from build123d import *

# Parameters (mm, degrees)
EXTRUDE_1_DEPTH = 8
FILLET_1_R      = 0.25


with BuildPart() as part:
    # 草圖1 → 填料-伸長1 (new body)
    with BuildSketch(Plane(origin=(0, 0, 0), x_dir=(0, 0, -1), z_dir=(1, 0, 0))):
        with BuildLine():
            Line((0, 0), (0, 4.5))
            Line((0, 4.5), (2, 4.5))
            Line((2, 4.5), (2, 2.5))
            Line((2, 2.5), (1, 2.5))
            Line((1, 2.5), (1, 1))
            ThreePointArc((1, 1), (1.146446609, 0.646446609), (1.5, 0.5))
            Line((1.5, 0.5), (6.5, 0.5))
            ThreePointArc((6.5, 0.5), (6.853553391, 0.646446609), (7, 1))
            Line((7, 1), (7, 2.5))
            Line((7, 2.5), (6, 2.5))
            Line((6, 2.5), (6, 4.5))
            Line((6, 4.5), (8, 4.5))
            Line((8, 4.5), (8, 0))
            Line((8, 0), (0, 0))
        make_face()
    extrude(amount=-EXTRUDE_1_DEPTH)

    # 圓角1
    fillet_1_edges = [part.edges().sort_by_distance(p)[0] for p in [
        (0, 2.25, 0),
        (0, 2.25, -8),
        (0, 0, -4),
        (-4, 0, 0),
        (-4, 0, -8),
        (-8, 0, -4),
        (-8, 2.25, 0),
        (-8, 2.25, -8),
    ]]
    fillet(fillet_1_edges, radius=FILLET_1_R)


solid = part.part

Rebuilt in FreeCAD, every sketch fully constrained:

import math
import FreeCAD as App
import Part
import Sketcher
from FreeCAD import Vector


def edges_at(feature, points):
    """Names of the edges that pass closest to the given points."""
    edges = feature.Shape.Edges
    near = lambda p: min(range(len(edges)), key=lambda i: edges[i].distToShape(Part.Vertex(*p))[0])
    return sorted({f"Edge{near(p) + 1}" for p in points})

doc = App.newDocument("Part")
body = doc.addObject("PartDesign::Body", "Body")

# Sketch on YZ plane
sketch1 = body.newObject("Sketcher::SketchObject", "Sketch")
sketch1.AttachmentSupport = (doc.getObject("YZ_Plane"), [""])
sketch1.MapMode = "FlatFace"
sketch1.addGeometry([
    Part.LineSegment(Vector(4.5, 0, 0), Vector(0, 0, 0)),  # 0
    Part.LineSegment(Vector(0, 0, 0), Vector(0, -8, 0)),  # 1
    Part.LineSegment(Vector(0, -8, 0), Vector(4.5, -8, 0)),  # 2
    Part.LineSegment(Vector(4.5, -8, 0), Vector(4.5, -6, 0)),  # 3
    Part.LineSegment(Vector(4.5, -6, 0), Vector(2.5, -6, 0)),  # 4
    Part.LineSegment(Vector(2.5, -6, 0), Vector(2.5, -7, 0)),  # 5
    Part.LineSegment(Vector(2.5, -7, 0), Vector(1, -7, 0)),  # 6
    Part.ArcOfCircle(Part.Circle(Vector(1, -6.5, 0), Vector(0, 0, 1), 0.5), math.radians(180), math.radians(270)),  # 7
    Part.LineSegment(Vector(0.5, -6.5, 0), Vector(0.5, -1.5, 0)),  # 8
    Part.ArcOfCircle(Part.Circle(Vector(1, -1.5, 0), Vector(0, 0, 1), 0.5), math.radians(90), math.radians(180)),  # 9
    Part.LineSegment(Vector(1, -1, 0), Vector(2.5, -1, 0)),  # 10
    Part.LineSegment(Vector(2.5, -1, 0), Vector(2.5, -2, 0)),  # 11
    Part.LineSegment(Vector(2.5, -2, 0), Vector(4.5, -2, 0)),  # 12
    Part.LineSegment(Vector(4.5, -2, 0), Vector(4.5, 0, 0)),  # 13
], False)
sketch1.addConstraint([
    Sketcher.Constraint("Coincident", 0, 2, 1, 1),
    Sketcher.Constraint("Coincident", 1, 2, 2, 1),
    Sketcher.Constraint("Coincident", 2, 2, 3, 1),
    Sketcher.Constraint("Coincident", 3, 2, 4, 1),
    Sketcher.Constraint("Coincident", 4, 2, 5, 1),
    Sketcher.Constraint("Coincident", 5, 2, 6, 1),
    Sketcher.Constraint("Tangent", 6, 2, 7, 2),
    Sketcher.Constraint("Tangent", 7, 1, 8, 1),
    Sketcher.Constraint("Tangent", 8, 2, 9, 2),
    Sketcher.Constraint("Tangent", 9, 1, 10, 1),
    Sketcher.Constraint("Coincident", 10, 2, 11, 1),
    Sketcher.Constraint("Coincident", 11, 2, 12, 1),
    Sketcher.Constraint("Coincident", 12, 2, 13, 1),
    Sketcher.Constraint("Coincident", 13, 2, 0, 1),
    Sketcher.Constraint("Horizontal", 0),
    Sketcher.Constraint("Vertical", 1),
    Sketcher.Constraint("Horizontal", 2),
    Sketcher.Constraint("Vertical", 3),
    Sketcher.Constraint("Horizontal", 4),
    Sketcher.Constraint("Vertical", 5),
    Sketcher.Constraint("Horizontal", 6),
    Sketcher.Constraint("Vertical", 8),
    Sketcher.Constraint("Horizontal", 10),
    Sketcher.Constraint("Vertical", 11),
    Sketcher.Constraint("Horizontal", 12),
    Sketcher.Constraint("Vertical", 13),
    Sketcher.Constraint("Coincident", 0, 2, -1, 1),
    Sketcher.Constraint("Equal", 7, 9),
    Sketcher.Constraint("Vertical", 5, 2, 10, 2),
    Sketcher.Constraint("Vertical", 3, 2, 12, 2),
    Sketcher.Constraint("Equal", 12, 3),
    Sketcher.Constraint("Equal", 5, 11),
    Sketcher.Constraint("Equal", 3, 13),
    Sketcher.Constraint("Radius", 7, 0.5),
    Sketcher.Constraint("DistanceX", 4, 2, 4, 1, 2.0),
    Sketcher.Constraint("DistanceY", 1, 2, 1, 1, 8.0),
    Sketcher.Constraint("DistanceY", 5, 2, 5, 1, 1.0),
    Sketcher.Constraint("DistanceX", 0, 2, 0, 1, 4.5),
    Sketcher.Constraint("DistanceX", 6, 2, 6, 1, 1.5),
])
pad1 = body.newObject("PartDesign::Pad", "Pad")
pad1.Profile = sketch1
pad1.Length = 8
pad1.Reversed = True
doc.recompute()

fillet = body.newObject("PartDesign::Fillet", "Fillet")
fillet.Base = (pad1, edges_at(pad1, [
    (0, 2.25, 0),
    (0, 2.25, -8),
    (0, 0, -4),
    (-4, 0, 0),
    (-4, 0, -8),
    (-8, 0, -4),
    (-8, 2.25, 0),
    (-8, 2.25, -8),
]))
fillet.Radius = 0.25

doc.recompute()
